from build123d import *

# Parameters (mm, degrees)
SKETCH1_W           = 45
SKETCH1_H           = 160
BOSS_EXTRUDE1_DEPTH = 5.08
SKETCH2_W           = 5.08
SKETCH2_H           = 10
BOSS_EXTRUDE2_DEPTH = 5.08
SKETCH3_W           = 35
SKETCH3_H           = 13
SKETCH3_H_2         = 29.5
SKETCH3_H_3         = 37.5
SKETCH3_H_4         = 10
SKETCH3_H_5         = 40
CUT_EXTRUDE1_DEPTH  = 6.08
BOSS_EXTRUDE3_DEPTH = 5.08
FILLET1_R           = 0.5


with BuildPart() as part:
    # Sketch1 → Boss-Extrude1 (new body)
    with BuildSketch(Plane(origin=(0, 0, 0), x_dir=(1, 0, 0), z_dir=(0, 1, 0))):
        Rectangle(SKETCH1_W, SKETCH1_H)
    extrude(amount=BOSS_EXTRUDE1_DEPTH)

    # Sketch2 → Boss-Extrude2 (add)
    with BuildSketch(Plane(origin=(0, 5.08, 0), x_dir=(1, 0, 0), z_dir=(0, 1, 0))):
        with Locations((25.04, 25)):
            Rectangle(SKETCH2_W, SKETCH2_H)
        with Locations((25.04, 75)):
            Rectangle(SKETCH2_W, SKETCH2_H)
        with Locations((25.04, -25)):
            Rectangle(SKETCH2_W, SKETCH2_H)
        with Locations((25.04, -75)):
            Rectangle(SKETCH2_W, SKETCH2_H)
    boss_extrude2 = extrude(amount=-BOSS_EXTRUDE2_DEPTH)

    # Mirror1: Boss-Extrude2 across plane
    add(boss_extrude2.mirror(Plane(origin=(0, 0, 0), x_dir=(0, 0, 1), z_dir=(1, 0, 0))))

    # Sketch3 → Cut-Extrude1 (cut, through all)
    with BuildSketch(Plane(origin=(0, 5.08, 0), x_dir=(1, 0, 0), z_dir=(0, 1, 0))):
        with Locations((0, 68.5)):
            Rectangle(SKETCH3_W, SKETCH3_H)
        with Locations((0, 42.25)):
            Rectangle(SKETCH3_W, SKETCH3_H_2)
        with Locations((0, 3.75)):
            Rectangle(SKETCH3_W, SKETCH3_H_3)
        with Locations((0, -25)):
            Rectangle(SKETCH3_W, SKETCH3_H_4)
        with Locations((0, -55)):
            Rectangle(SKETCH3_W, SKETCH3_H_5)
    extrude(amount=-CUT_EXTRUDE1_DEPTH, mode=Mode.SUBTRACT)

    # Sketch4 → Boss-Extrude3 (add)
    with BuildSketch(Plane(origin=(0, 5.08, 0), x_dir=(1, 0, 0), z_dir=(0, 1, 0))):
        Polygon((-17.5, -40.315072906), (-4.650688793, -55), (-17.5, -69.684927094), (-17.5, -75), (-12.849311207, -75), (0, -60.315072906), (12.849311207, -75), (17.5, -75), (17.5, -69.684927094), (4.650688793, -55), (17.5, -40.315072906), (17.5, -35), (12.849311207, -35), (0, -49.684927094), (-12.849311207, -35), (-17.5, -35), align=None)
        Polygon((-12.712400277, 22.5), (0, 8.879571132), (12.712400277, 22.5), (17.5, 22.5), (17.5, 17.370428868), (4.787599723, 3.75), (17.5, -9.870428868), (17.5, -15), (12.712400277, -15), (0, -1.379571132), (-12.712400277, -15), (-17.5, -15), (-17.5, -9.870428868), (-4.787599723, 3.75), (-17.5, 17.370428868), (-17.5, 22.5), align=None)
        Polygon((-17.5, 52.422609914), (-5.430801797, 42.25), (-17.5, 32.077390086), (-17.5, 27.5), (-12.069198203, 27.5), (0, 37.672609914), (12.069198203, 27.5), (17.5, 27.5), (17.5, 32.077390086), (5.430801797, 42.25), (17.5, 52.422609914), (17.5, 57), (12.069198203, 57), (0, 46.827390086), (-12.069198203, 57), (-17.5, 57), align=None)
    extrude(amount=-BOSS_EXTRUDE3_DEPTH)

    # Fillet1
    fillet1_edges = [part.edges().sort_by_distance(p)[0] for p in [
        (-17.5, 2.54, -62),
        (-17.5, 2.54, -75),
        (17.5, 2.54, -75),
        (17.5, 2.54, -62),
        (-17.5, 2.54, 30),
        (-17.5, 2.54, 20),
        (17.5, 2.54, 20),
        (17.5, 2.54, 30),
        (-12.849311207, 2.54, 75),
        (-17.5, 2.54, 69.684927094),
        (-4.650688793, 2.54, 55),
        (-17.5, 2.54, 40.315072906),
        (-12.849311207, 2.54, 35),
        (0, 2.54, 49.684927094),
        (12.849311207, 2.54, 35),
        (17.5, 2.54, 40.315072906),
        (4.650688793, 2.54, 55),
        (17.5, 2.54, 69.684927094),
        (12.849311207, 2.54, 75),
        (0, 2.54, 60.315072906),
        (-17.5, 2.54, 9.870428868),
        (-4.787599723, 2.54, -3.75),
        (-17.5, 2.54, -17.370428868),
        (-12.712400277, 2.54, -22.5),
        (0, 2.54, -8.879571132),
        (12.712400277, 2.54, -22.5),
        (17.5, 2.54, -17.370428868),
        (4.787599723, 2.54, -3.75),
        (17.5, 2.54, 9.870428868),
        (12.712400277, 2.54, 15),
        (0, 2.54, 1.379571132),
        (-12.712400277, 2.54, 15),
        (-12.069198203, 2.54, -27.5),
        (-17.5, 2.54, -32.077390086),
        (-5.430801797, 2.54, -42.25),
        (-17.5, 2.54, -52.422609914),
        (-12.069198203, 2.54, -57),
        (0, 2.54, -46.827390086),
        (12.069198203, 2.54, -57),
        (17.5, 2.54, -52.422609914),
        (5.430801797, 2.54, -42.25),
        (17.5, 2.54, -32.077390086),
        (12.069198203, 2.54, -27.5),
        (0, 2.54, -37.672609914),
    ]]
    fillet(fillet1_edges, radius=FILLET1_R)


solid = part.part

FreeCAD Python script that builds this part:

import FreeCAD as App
import Part
import Sketcher
Q = App.Units.Quantity


def edges_at(feature, points):
    """Names of the edges that pass closest to the given points."""
    edges = feature.Shape.Edges
    near = lambda p: min(range(len(edges)), key=lambda i: edges[i].distToShape(Part.Vertex(*p))[0])
    return sorted({f"Edge{near(p) + 1}" for p in points})


def add_polygon(sketch, points):
    """Adds a closed chain of lines whose ends are joined by coincident constraints."""
    first, n = sketch.GeometryCount, len(points)
    for a, b in zip(points, points[1:] + points[:1]):
        sketch.addGeometry(Part.LineSegment(App.Vector(*a, 0), App.Vector(*b, 0)), False)
    for i in range(n):
        sketch.addConstraint(Sketcher.Constraint("Coincident", first + i, 2, first + (i + 1) % n, 1))

doc = App.newDocument("Part")
body = doc.addObject("PartDesign::Body", "Body")

sketch1 = doc.addObject("Sketcher::SketchObject", "Sketch")
body.addObject(sketch1)
sketch1.AttachmentSupport = (doc.XZ_Plane, [""])
sketch1.MapMode = "FlatFace"
add_polygon(sketch1, [(-22, -80), (-22, 80), (22, 80), (22, -80)])
sketch1.addConstraint([
    Sketcher.Constraint("Vertical", 0),
    Sketcher.Constraint("Horizontal", 1),
    Sketcher.Constraint("Vertical", 2),
    Sketcher.Constraint("Horizontal", 3),
    Sketcher.Constraint("Symmetric", 0, 2, 2, 2, -1, 1),
    Sketcher.Constraint("DistanceX", 1, 1, 1, 2, Q("45 mm")),
    Sketcher.Constraint("DistanceY", 0, 1, 0, 2, Q("160 mm")),
])
pad1 = doc.addObject("PartDesign::Pad", "Pad")
body.addObject(pad1)
pad1.Profile = sketch1
pad1.Length = 5.08
pad1.Reversed = True

sketch2 = doc.addObject("Sketcher::SketchObject", "Sketch001")
body.addObject(sketch2)
sketch2.AttachmentSupport = (doc.XZ_Plane, [""])
sketch2.MapMode = "FlatFace"
sketch2.AttachmentOffset = App.Placement(App.Vector(0, 0, -5.08), App.Rotation())
add_polygon(sketch2, [(22, -30), (22, -20), (28, -20), (28, -30)])
add_polygon(sketch2, [(22, -80), (22, -70), (28, -70), (28, -80)])
add_polygon(sketch2, [(22, 20), (22, 30), (28, 30), (28, 20)])
add_polygon(sketch2, [(22, 70), (22, 80), (28, 80), (28, 70)])
sketch2.addConstraint([
    Sketcher.Constraint("Vertical", 0),
    Sketcher.Constraint("Horizontal", 1),
    Sketcher.Constraint("Vertical", 2),
    Sketcher.Constraint("Horizontal", 3),
    Sketcher.Constraint("Vertical", 4),
    Sketcher.Constraint("Horizontal", 5),
    Sketcher.Constraint("Vertical", 6),
    Sketcher.Constraint("Horizontal", 7),
    Sketcher.Constraint("Vertical", 8),
    Sketcher.Constraint("Horizontal", 9),
    Sketcher.Constraint("Vertical", 10),
    Sketcher.Constraint("Horizontal", 11),
    Sketcher.Constraint("Vertical", 12),
    Sketcher.Constraint("Horizontal", 13),
    Sketcher.Constraint("Vertical", 14),
    Sketcher.Constraint("Horizontal", 15),
    Sketcher.Constraint("Symmetric", 3, 2, 8, 2, -1),
    Sketcher.Constraint("Symmetric", 1, 2, 10, 2, -1),
    Sketcher.Constraint("Symmetric", 7, 2, 12, 2, -1),
    Sketcher.Constraint("Symmetric", 5, 2, 14, 2, -1),
    Sketcher.Constraint("Vertical", 3, 2, 4, 2),
    Sketcher.Constraint("Vertical", 2, 2, 5, 2),
    Sketcher.Constraint("Equal", 2, 4),
    Sketcher.Constraint("DistanceY", 0, 1, 0, 2, Q("10 mm")),
    Sketcher.Constraint("DistanceY", 0, 2, -1, 1, Q("20 mm")),
    Sketcher.Constraint("DistanceY", 4, 2, -1, 1, Q("70 mm")),
    Sketcher.Constraint("DistanceX", 1, 1, 1, 2, Q("5.08 mm")),
    Sketcher.Constraint("DistanceX", -1, 1, 0, 2, Q("22.5 mm")),
])
pad2 = doc.addObject("PartDesign::Pad", "Pad001")
body.addObject(pad2)
pad2.Profile = sketch2
pad2.Length = 5.08
doc.recompute()

mirrored = doc.addObject("PartDesign::Mirrored", "Mirrored")
body.addObject(mirrored)
mirrored.Originals = [pad2]
mirrored.MirrorPlane = (doc.YZ_Plane, [""])
body.Tip = mirrored

sketch3 = doc.addObject("Sketcher::SketchObject", "Sketch002")
body.addObject(sketch3)
sketch3.AttachmentSupport = (doc.XZ_Plane, [""])
sketch3.MapMode = "FlatFace"
sketch3.AttachmentOffset = App.Placement(App.Vector(0, 0, -5.08), App.Rotation())
add_polygon(sketch3, [(-18, -75), (-18, -62), (18, -62), (18, -75)])
add_polygon(sketch3, [(-18, -57), (-18, -28), (18, -28), (18, -57)])
add_polygon(sketch3, [(-18, -22), (-18, 15), (18, 15), (18, -22)])
add_polygon(sketch3, [(-18, 20), (-18, 30), (18, 30), (18, 20)])
add_polygon(sketch3, [(-18, 35), (-18, 75), (18, 75), (18, 35)])
sketch3.addConstraint([
    Sketcher.Constraint("Vertical", 0),
    Sketcher.Constraint("Horizontal", 1),
    Sketcher.Constraint("Vertical", 2),
    Sketcher.Constraint("Horizontal", 3),
    Sketcher.Constraint("Vertical", 4),
    Sketcher.Constraint("Horizontal", 5),
    Sketcher.Constraint("Vertical", 6),
    Sketcher.Constraint("Horizontal", 7),
    Sketcher.Constraint("Vertical", 8),
    Sketcher.Constraint("Horizontal", 9),
    Sketcher.Constraint("Vertical", 10),
    Sketcher.Constraint("Horizontal", 11),
    Sketcher.Constraint("Vertical", 12),
    Sketcher.Constraint("Horizontal", 13),
    Sketcher.Constraint("Vertical", 14),
    Sketcher.Constraint("Horizontal", 15),
    Sketcher.Constraint("Vertical", 16),
    Sketcher.Constraint("Horizontal", 17),
    Sketcher.Constraint("Vertical", 18),
    Sketcher.Constraint("Horizontal", 19),
    Sketcher.Constraint("Symmetric", 2, 2, 16, 2, -1, 1),
    Sketcher.Constraint("Vertical", 3, 2, 4, 2),
    Sketcher.Constraint("Vertical", 2, 2, 5, 2),
    Sketcher.Constraint("Vertical", 7, 2, 8, 2),
    Sketcher.Constraint("Vertical", 6, 2, 9, 2),
    Sketcher.Constraint("Vertical", 11, 2, 12, 2),
    Sketcher.Constraint("Vertical", 10, 2, 13, 2),
    Sketcher.Constraint("Vertical", 15, 2, 16, 2),
    Sketcher.Constraint("Vertical", 14, 2, 17, 2),
    Sketcher.Constraint("DistanceX", 1, 1, 1, 2, Q("35 mm")),
    Sketcher.Constraint("DistanceY", 0, 1, 0, 2, Q("13 mm")),
    Sketcher.Constraint("DistanceY", 12, 1, 12, 2, Q("10 mm")),
    Sketcher.Constraint("DistanceY", 16, 1, 16, 2, Q("40 mm")),
    Sketcher.Constraint("DistanceY", 4, 1, 4, 2, Q("29.5 mm")),
    Sketcher.Constraint("DistanceY", 8, 1, 8, 2, Q("37.5 mm")),
    Sketcher.Constraint("DistanceY", 0, 2, -1, 1, Q("62 mm")),
    Sketcher.Constraint("DistanceY", 6, 2, -1, 1, Q("57 mm")),
    Sketcher.Constraint("DistanceY", -1, 1, 8, 2, Q("15 mm")),
    Sketcher.Constraint("DistanceY", -1, 1, 12, 2, Q("30 mm")),
])
pocket1 = doc.addObject("PartDesign::Pocket", "Pocket")
body.addObject(pocket1)
pocket1.Profile = sketch3
pocket1.Type = "ThroughAll"
pocket1.Reversed = True

sketch4 = doc.addObject("Sketcher::SketchObject", "Sketch003")
body.addObject(sketch4)
sketch4.AttachmentSupport = (doc.XZ_Plane, [""])
sketch4.MapMode = "FlatFace"
sketch4.AttachmentOffset = App.Placement(App.Vector(0, 0, -5.08), App.Rotation())
add_polygon(sketch4, [(-17.5, 40.3), (-4.7, 55), (-17.5, 69.7), (-17.5, 75), (-12.8, 75), (0, 60.3), (12.8, 75), (17.5, 75), (17.5, 69.7), (4.7, 55), (17.5, 40.3), (17.5, 35), (12.8, 35), (0, 49.7), (-12.8, 35), (-17.5, 35)])
add_polygon(sketch4, [(0, -8.9), (-12.7, -22.5), (-17.5, -22.5), (-17.5, -17.4), (-4.8, -3.8), (-17.5, 9.9), (-17.5, 15), (-12.7, 15), (0, 1.4), (12.7, 15), (17.5, 15), (17.5, 9.9), (4.8, -3.8), (17.5, -17.4), (17.5, -22.5), (12.7, -22.5)])
add_polygon(sketch4, [(-17.5, -52.4), (-5.4, -42.2), (-17.5, -32.1), (-17.5, -27.5), (-12.1, -27.5), (0, -37.7), (12.1, -27.5), (17.5, -27.5), (17.5, -32.1), (5.4, -42.2), (17.5, -52.4), (17.5, -57), (12.1, -57), (0, -46.8), (-12.1, -57), (-17.5, -57)])
sketch4.addConstraint([
    Sketcher.Constraint("Vertical", 2),
    Sketcher.Constraint("Horizontal", 3),
    Sketcher.Constraint("Horizontal", 6),
    Sketcher.Constraint("Vertical", 7),
    Sketcher.Constraint("Vertical", 10),
    Sketcher.Constraint("Horizontal", 11),
    Sketcher.Constraint("Horizontal", 14),
    Sketcher.Constraint("Vertical", 15),
    Sketcher.Constraint("Horizontal", 17),
    Sketcher.Constraint("Vertical", 18),
    Sketcher.Constraint("Vertical", 21),
    Sketcher.Constraint("Horizontal", 22),
    Sketcher.Constraint("Horizontal", 25),
    Sketcher.Constraint("Vertical", 26),
    Sketcher.Constraint("Vertical", 29),
    Sketcher.Constraint("Horizontal", 30),
    Sketcher.Constraint("Vertical", 34),
    Sketcher.Constraint("Horizontal", 35),
    Sketcher.Constraint("Horizontal", 38),
    Sketcher.Constraint("Vertical", 39),
    Sketcher.Constraint("Vertical", 42),
    Sketcher.Constraint("Horizontal", 43),
    Sketcher.Constraint("Horizontal", 46),
    Sketcher.Constraint("Vertical", 47),
    Sketcher.Constraint("Symmetric", 3, 2, 5, 2, -2),
    Sketcher.Constraint("Symmetric", 1, 2, 7, 2, -2),
    Sketcher.Constraint("Symmetric", 0, 2, 8, 2, -2),
    Sketcher.Constraint("Symmetric", 11, 2, 13, 2, -2),
    Sketcher.Constraint("Symmetric", 9, 2, 15, 2, -2),
    Sketcher.Constraint("Symmetric", 22, 2, 24, 2, -2),
    Sketcher.Constraint("Symmetric", 20, 2, 26, 2, -2),
    Sketcher.Constraint("Symmetric", 19, 2, 27, 2, -2),
    Sketcher.Constraint("Symmetric", 18, 2, 28, 2, -2),
    Sketcher.Constraint("Symmetric", 16, 2, 30, 2, -2),
    Sketcher.Constraint("Symmetric", 35, 2, 37, 2, -2),
    Sketcher.Constraint("Symmetric", 33, 2, 39, 2, -2),
    Sketcher.Constraint("Symmetric", 32, 2, 40, 2, -2),
    Sketcher.Constraint("Symmetric", 43, 2, 45, 2, -2),
    Sketcher.Constraint("Symmetric", 41, 2, 47, 2, -2),
    Sketcher.Constraint("PointOnObject", 4, 2, -2),
    Sketcher.Constraint("PointOnObject", 12, 2, -2),
    Sketcher.Constraint("PointOnObject", 23, 2, -2),
    Sketcher.Constraint("PointOnObject", 31, 2, -2),
    Sketcher.Constraint("PointOnObject", 36, 2, -2),
    Sketcher.Constraint("PointOnObject", 44, 2, -2),
    Sketcher.Constraint("Parallel", 1, 4),
    Sketcher.Constraint("Parallel", 0, 5),
    Sketcher.Constraint("Parallel", 9, 12),
    Sketcher.Constraint("Parallel", 16, 19),
    Sketcher.Constraint("Parallel", 20, 23),
    Sketcher.Constraint("Parallel", 19, 24),
    Sketcher.Constraint("Parallel", 33, 36),
    Sketcher.Constraint("Parallel", 32, 37),
    Sketcher.Constraint("Parallel", 41, 44),
    Sketcher.Constraint("Vertical", 7, 2, 9, 2),
    Sketcher.Constraint("Vertical", 5, 2, 11, 2),
    Sketcher.Constraint("Vertical", 15, 2, 17, 2),
    Sketcher.Constraint("Vertical", 18, 2, 20, 2),
    Sketcher.Constraint("Vertical", 16, 2, 22, 2),
    Sketcher.Constraint("Vertical", 21, 2, 33, 2),
    Sketcher.Constraint("Vertical", 39, 2, 41, 2),
    Sketcher.Constraint("Vertical", 37, 2, 43, 2),
    Sketcher.Constraint("Equal", 7, 10),
    Sketcher.Constraint("Equal", 18, 21),
    Sketcher.Constraint("Equal", 39, 42),
    Sketcher.Constraint("Equal", 1, 4),
    Sketcher.Constraint("Equal", 16, 19),
    Sketcher.Constraint("Equal", 33, 36),
    Sketcher.Constraint("DistanceY", -1, 1, 0, 2, Q("55 mm")),
    Sketcher.Constraint("DistanceY", -1, 1, 2, 2, Q("75 mm")),
    Sketcher.Constraint("DistanceY", -1, 1, 21, 2, Q("15 mm")),
    Sketcher.Constraint("DistanceY", 42, 2, -1, 1, Q("57 mm")),
    Sketcher.Constraint("DistanceX", 2, 2, 6, 2, Q("35 mm")),
    Sketcher.Constraint("DistanceY", 34, 2, 17, 2, Q("5 mm")),
    Sketcher.Constraint("DistanceY", 16, 2, -1, 1, Q("22.5 mm")),
    Sketcher.Constraint("DistanceX", 17, 2, 17, 1, Q("4.7876 mm")),
    Sketcher.Constraint("DistanceX", 35, 1, 35, 2, Q("5.430802 mm")),
    Sketcher.Constraint("DistanceX", 3, 1, 3, 2, Q("4.650689 mm")),
    Sketcher.Constraint("DistanceY", 18, 1, 18, 2, Q("5.129571 mm")),
    Sketcher.Constraint("DistanceY", 34, 1, 34, 2, Q("4.57739 mm")),
    Sketcher.Constraint("DistanceY", 18, 2, 15, 2, Q("57.685502 mm")),
])
pad3 = doc.addObject("PartDesign::Pad", "Pad002")
body.addObject(pad3)
pad3.Profile = sketch4
pad3.Length = 5.08
doc.recompute()

fillet = doc.addObject("PartDesign::Fillet", "Fillet")
body.addObject(fillet)
fillet.Base = (pad3, edges_at(pad3, [
    (-17.5, 2.54, -62),
    (-17.5, 2.54, -75),
    (17.5, 2.54, -75),
    (17.5, 2.54, -62),
    (-17.5, 2.54, 30),
    (-17.5, 2.54, 20),
    (17.5, 2.54, 20),
    (17.5, 2.54, 30),
    (-12.849, 2.54, 75),
    (-17.5, 2.54, 69.685),
    (-4.651, 2.54, 55),
    (-17.5, 2.54, 40.315),
    (-12.849, 2.54, 35),
    (0, 2.54, 49.685),
    (12.849, 2.54, 35),
    (17.5, 2.54, 40.315),
    (4.651, 2.54, 55),
    (17.5, 2.54, 69.685),
    (12.849, 2.54, 75),
    (0, 2.54, 60.315),
    (-17.5, 2.54, 9.87),
    (-4.788, 2.54, -3.75),
    (-17.5, 2.54, -17.37),
    (-12.712, 2.54, -22.5),
    (0, 2.54, -8.88),
    (12.712, 2.54, -22.5),
    (17.5, 2.54, -17.37),
    (4.788, 2.54, -3.75),
    (17.5, 2.54, 9.87),
    (12.712, 2.54, 15),
    (0, 2.54, 1.38),
    (-12.712, 2.54, 15),
    (-12.069, 2.54, -27.5),
    (-17.5, 2.54, -32.077),
    (-5.431, 2.54, -42.25),
    (-17.5, 2.54, -52.423),
    (-12.069, 2.54, -57),
    (0, 2.54, -46.827),
    (12.069, 2.54, -57),
    (17.5, 2.54, -52.423),
    (5.431, 2.54, -42.25),
    (17.5, 2.54, -32.077),
    (12.069, 2.54, -27.5),
    (0, 2.54, -37.673),
]))
fillet.Radius = 0.5

doc.recompute()
